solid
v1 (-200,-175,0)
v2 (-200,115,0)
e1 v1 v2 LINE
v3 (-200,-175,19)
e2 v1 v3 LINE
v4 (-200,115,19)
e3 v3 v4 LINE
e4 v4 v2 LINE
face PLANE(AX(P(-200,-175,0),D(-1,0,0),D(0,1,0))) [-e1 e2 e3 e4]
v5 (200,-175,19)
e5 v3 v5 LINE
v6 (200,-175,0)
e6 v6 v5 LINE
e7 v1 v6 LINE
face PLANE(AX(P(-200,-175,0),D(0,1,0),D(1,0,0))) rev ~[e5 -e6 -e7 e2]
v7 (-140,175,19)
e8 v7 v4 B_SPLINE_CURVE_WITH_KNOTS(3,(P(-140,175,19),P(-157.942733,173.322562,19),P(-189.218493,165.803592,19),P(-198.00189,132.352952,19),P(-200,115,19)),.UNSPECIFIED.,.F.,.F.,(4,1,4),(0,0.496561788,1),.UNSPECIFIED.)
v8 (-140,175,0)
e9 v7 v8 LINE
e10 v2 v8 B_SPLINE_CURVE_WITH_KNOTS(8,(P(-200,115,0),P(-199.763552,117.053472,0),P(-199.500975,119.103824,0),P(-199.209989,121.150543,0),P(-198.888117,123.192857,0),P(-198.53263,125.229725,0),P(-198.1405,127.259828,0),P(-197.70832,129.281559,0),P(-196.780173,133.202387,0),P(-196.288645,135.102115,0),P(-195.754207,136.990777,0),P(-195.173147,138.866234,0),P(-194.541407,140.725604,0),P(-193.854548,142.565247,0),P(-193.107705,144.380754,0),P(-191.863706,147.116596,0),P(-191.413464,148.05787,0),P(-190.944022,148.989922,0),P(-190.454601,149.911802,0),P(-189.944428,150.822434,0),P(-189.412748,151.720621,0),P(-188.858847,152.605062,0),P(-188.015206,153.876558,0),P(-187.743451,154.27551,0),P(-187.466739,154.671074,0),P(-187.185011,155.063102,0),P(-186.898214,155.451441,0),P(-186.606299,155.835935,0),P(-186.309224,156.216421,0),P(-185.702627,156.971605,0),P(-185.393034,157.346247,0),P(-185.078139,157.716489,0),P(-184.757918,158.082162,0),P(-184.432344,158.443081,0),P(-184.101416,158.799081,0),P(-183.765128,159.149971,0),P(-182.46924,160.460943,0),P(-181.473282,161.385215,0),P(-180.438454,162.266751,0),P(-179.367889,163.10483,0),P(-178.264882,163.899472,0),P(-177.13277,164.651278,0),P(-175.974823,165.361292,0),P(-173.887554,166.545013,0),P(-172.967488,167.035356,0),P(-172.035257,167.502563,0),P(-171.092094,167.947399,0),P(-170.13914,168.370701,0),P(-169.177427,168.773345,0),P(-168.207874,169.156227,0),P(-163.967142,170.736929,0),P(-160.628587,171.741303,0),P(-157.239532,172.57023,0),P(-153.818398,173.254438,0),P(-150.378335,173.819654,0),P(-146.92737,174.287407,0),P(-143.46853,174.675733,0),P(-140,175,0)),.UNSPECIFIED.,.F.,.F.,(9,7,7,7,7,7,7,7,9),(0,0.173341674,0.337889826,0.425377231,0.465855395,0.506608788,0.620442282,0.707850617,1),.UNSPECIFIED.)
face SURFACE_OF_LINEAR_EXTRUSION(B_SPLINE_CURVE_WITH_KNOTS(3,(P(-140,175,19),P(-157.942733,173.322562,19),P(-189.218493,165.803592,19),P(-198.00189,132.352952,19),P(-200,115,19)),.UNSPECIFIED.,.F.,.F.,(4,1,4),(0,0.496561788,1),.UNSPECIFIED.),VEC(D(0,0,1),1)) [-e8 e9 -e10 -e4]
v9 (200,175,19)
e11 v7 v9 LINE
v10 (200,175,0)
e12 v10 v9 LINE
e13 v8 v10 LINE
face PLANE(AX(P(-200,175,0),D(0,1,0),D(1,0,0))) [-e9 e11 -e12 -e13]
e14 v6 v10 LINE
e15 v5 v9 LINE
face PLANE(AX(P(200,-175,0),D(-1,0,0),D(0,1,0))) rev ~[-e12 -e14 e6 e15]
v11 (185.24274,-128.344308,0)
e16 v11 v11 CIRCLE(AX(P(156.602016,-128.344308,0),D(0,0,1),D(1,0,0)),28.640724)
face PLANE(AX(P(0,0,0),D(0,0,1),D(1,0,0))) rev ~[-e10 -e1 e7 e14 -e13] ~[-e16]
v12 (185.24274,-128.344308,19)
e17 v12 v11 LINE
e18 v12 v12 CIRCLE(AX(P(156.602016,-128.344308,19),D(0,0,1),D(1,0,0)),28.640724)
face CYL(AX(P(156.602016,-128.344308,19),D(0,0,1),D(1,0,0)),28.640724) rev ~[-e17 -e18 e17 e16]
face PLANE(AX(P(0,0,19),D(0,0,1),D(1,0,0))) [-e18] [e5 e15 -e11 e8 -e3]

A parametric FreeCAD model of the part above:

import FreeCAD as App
import Part
import Sketcher
from FreeCAD import Vector


def add_polygon(sketch, points):
    """Adds a closed chain of lines whose ends are joined by coincident constraints."""
    first, n = sketch.GeometryCount, len(points)
    for a, b in zip(points, points[1:] + points[:1]):
        sketch.addGeometry(Part.LineSegment(App.Vector(*a, 0), App.Vector(*b, 0)), False)
    for i in range(n):
        sketch.addConstraint(Sketcher.Constraint("Coincident", first + i, 2, first + (i + 1) % n, 1))

doc = App.newDocument("Part")
body = doc.addObject("PartDesign::Body", "Body")

sketch1 = body.newObject("Sketcher::SketchObject", "Sketch")
sketch1.AttachmentSupport = (doc.getObject("XY_Plane"), [""])
sketch1.MapMode = "FlatFace"
add_polygon(sketch1, [(-200, 175), (-200, -175), (200, -175), (200, 175)])
sketch1.addConstraint([
    Sketcher.Constraint("Vertical", 0),
    Sketcher.Constraint("Horizontal", 1),
    Sketcher.Constraint("Vertical", 2),
    Sketcher.Constraint("Horizontal", 3),
    Sketcher.Constraint("Symmetric", 0, 2, 2, 2, -1, 1),
    Sketcher.Constraint("DistanceX", 1, 1, 1, 2, 400.0),
    Sketcher.Constraint("DistanceY", 0, 2, 0, 1, 350.0),
])
pad1 = body.newObject("PartDesign::Pad", "Pad")
pad1.Profile = sketch1
pad1.Length = 19

sketch2 = body.newObject("Sketcher::SketchObject", "Sketch001")
sketch2.AttachmentSupport = (doc.getObject("XY_Plane"), [""])
sketch2.MapMode = "FlatFace"
sketch2.AttachmentOffset = App.Placement(Vector(0, 0, 19), App.Rotation())
sketch2.addGeometry([
    Part.BSplineCurve([Vector(-140, 175, 0), Vector(-157.942733, 173.322562, 0), Vector(-189.218493, 165.803592, 0), Vector(-198.00189, 132.352952, 0), Vector(-200, 115, 0)], [4, 1, 4], [0, 0.496561788, 1], False, 3, [1, 1, 1, 1, 1], False),
    Part.LineSegment(Vector(-140, 175, 0), Vector(-200, 175, 0)),
    Part.LineSegment(Vector(-200, 175, 0), Vector(-200, 115, 0)),
], False)
sketch2.addConstraint([
    Sketcher.Constraint("Block", 0),
    Sketcher.Constraint("Coincident", 0, 1, 1, 1),
    Sketcher.Constraint("Coincident", 1, 2, 2, 1),
    Sketcher.Constraint("Coincident", 2, 2, 0, 2),
    Sketcher.Constraint("Horizontal", 1),
    Sketcher.Constraint("Vertical", 2),
])
pocket1 = body.newObject("PartDesign::Pocket", "Pocket")
pocket1.Profile = sketch2
pocket1.Type = "ThroughAll"

sketch3 = body.newObject("Sketcher::SketchObject", "Sketch002")
sketch3.AttachmentSupport = (doc.getObject("XY_Plane"), [""])
sketch3.MapMode = "FlatFace"
sketch3.AttachmentOffset = App.Placement(Vector(0, 0, 19), App.Rotation())
sketch3.addGeometry(Part.Circle(Vector(157, -128, 0), Vector(0, 0, 1), 29), False)
sketch3.addConstraint([
    Sketcher.Constraint("Diameter", 0, 57.281449),
    Sketcher.Constraint("DistanceY", 0, 3, -1, 1, 128.344308),
    Sketcher.Constraint("DistanceX", -1, 1, 0, 3, 156.602016),
])
pocket2 = body.newObject("PartDesign::Pocket", "Pocket001")
pocket2.Profile = sketch3
pocket2.Type = "ThroughAll"

doc.recompute()
